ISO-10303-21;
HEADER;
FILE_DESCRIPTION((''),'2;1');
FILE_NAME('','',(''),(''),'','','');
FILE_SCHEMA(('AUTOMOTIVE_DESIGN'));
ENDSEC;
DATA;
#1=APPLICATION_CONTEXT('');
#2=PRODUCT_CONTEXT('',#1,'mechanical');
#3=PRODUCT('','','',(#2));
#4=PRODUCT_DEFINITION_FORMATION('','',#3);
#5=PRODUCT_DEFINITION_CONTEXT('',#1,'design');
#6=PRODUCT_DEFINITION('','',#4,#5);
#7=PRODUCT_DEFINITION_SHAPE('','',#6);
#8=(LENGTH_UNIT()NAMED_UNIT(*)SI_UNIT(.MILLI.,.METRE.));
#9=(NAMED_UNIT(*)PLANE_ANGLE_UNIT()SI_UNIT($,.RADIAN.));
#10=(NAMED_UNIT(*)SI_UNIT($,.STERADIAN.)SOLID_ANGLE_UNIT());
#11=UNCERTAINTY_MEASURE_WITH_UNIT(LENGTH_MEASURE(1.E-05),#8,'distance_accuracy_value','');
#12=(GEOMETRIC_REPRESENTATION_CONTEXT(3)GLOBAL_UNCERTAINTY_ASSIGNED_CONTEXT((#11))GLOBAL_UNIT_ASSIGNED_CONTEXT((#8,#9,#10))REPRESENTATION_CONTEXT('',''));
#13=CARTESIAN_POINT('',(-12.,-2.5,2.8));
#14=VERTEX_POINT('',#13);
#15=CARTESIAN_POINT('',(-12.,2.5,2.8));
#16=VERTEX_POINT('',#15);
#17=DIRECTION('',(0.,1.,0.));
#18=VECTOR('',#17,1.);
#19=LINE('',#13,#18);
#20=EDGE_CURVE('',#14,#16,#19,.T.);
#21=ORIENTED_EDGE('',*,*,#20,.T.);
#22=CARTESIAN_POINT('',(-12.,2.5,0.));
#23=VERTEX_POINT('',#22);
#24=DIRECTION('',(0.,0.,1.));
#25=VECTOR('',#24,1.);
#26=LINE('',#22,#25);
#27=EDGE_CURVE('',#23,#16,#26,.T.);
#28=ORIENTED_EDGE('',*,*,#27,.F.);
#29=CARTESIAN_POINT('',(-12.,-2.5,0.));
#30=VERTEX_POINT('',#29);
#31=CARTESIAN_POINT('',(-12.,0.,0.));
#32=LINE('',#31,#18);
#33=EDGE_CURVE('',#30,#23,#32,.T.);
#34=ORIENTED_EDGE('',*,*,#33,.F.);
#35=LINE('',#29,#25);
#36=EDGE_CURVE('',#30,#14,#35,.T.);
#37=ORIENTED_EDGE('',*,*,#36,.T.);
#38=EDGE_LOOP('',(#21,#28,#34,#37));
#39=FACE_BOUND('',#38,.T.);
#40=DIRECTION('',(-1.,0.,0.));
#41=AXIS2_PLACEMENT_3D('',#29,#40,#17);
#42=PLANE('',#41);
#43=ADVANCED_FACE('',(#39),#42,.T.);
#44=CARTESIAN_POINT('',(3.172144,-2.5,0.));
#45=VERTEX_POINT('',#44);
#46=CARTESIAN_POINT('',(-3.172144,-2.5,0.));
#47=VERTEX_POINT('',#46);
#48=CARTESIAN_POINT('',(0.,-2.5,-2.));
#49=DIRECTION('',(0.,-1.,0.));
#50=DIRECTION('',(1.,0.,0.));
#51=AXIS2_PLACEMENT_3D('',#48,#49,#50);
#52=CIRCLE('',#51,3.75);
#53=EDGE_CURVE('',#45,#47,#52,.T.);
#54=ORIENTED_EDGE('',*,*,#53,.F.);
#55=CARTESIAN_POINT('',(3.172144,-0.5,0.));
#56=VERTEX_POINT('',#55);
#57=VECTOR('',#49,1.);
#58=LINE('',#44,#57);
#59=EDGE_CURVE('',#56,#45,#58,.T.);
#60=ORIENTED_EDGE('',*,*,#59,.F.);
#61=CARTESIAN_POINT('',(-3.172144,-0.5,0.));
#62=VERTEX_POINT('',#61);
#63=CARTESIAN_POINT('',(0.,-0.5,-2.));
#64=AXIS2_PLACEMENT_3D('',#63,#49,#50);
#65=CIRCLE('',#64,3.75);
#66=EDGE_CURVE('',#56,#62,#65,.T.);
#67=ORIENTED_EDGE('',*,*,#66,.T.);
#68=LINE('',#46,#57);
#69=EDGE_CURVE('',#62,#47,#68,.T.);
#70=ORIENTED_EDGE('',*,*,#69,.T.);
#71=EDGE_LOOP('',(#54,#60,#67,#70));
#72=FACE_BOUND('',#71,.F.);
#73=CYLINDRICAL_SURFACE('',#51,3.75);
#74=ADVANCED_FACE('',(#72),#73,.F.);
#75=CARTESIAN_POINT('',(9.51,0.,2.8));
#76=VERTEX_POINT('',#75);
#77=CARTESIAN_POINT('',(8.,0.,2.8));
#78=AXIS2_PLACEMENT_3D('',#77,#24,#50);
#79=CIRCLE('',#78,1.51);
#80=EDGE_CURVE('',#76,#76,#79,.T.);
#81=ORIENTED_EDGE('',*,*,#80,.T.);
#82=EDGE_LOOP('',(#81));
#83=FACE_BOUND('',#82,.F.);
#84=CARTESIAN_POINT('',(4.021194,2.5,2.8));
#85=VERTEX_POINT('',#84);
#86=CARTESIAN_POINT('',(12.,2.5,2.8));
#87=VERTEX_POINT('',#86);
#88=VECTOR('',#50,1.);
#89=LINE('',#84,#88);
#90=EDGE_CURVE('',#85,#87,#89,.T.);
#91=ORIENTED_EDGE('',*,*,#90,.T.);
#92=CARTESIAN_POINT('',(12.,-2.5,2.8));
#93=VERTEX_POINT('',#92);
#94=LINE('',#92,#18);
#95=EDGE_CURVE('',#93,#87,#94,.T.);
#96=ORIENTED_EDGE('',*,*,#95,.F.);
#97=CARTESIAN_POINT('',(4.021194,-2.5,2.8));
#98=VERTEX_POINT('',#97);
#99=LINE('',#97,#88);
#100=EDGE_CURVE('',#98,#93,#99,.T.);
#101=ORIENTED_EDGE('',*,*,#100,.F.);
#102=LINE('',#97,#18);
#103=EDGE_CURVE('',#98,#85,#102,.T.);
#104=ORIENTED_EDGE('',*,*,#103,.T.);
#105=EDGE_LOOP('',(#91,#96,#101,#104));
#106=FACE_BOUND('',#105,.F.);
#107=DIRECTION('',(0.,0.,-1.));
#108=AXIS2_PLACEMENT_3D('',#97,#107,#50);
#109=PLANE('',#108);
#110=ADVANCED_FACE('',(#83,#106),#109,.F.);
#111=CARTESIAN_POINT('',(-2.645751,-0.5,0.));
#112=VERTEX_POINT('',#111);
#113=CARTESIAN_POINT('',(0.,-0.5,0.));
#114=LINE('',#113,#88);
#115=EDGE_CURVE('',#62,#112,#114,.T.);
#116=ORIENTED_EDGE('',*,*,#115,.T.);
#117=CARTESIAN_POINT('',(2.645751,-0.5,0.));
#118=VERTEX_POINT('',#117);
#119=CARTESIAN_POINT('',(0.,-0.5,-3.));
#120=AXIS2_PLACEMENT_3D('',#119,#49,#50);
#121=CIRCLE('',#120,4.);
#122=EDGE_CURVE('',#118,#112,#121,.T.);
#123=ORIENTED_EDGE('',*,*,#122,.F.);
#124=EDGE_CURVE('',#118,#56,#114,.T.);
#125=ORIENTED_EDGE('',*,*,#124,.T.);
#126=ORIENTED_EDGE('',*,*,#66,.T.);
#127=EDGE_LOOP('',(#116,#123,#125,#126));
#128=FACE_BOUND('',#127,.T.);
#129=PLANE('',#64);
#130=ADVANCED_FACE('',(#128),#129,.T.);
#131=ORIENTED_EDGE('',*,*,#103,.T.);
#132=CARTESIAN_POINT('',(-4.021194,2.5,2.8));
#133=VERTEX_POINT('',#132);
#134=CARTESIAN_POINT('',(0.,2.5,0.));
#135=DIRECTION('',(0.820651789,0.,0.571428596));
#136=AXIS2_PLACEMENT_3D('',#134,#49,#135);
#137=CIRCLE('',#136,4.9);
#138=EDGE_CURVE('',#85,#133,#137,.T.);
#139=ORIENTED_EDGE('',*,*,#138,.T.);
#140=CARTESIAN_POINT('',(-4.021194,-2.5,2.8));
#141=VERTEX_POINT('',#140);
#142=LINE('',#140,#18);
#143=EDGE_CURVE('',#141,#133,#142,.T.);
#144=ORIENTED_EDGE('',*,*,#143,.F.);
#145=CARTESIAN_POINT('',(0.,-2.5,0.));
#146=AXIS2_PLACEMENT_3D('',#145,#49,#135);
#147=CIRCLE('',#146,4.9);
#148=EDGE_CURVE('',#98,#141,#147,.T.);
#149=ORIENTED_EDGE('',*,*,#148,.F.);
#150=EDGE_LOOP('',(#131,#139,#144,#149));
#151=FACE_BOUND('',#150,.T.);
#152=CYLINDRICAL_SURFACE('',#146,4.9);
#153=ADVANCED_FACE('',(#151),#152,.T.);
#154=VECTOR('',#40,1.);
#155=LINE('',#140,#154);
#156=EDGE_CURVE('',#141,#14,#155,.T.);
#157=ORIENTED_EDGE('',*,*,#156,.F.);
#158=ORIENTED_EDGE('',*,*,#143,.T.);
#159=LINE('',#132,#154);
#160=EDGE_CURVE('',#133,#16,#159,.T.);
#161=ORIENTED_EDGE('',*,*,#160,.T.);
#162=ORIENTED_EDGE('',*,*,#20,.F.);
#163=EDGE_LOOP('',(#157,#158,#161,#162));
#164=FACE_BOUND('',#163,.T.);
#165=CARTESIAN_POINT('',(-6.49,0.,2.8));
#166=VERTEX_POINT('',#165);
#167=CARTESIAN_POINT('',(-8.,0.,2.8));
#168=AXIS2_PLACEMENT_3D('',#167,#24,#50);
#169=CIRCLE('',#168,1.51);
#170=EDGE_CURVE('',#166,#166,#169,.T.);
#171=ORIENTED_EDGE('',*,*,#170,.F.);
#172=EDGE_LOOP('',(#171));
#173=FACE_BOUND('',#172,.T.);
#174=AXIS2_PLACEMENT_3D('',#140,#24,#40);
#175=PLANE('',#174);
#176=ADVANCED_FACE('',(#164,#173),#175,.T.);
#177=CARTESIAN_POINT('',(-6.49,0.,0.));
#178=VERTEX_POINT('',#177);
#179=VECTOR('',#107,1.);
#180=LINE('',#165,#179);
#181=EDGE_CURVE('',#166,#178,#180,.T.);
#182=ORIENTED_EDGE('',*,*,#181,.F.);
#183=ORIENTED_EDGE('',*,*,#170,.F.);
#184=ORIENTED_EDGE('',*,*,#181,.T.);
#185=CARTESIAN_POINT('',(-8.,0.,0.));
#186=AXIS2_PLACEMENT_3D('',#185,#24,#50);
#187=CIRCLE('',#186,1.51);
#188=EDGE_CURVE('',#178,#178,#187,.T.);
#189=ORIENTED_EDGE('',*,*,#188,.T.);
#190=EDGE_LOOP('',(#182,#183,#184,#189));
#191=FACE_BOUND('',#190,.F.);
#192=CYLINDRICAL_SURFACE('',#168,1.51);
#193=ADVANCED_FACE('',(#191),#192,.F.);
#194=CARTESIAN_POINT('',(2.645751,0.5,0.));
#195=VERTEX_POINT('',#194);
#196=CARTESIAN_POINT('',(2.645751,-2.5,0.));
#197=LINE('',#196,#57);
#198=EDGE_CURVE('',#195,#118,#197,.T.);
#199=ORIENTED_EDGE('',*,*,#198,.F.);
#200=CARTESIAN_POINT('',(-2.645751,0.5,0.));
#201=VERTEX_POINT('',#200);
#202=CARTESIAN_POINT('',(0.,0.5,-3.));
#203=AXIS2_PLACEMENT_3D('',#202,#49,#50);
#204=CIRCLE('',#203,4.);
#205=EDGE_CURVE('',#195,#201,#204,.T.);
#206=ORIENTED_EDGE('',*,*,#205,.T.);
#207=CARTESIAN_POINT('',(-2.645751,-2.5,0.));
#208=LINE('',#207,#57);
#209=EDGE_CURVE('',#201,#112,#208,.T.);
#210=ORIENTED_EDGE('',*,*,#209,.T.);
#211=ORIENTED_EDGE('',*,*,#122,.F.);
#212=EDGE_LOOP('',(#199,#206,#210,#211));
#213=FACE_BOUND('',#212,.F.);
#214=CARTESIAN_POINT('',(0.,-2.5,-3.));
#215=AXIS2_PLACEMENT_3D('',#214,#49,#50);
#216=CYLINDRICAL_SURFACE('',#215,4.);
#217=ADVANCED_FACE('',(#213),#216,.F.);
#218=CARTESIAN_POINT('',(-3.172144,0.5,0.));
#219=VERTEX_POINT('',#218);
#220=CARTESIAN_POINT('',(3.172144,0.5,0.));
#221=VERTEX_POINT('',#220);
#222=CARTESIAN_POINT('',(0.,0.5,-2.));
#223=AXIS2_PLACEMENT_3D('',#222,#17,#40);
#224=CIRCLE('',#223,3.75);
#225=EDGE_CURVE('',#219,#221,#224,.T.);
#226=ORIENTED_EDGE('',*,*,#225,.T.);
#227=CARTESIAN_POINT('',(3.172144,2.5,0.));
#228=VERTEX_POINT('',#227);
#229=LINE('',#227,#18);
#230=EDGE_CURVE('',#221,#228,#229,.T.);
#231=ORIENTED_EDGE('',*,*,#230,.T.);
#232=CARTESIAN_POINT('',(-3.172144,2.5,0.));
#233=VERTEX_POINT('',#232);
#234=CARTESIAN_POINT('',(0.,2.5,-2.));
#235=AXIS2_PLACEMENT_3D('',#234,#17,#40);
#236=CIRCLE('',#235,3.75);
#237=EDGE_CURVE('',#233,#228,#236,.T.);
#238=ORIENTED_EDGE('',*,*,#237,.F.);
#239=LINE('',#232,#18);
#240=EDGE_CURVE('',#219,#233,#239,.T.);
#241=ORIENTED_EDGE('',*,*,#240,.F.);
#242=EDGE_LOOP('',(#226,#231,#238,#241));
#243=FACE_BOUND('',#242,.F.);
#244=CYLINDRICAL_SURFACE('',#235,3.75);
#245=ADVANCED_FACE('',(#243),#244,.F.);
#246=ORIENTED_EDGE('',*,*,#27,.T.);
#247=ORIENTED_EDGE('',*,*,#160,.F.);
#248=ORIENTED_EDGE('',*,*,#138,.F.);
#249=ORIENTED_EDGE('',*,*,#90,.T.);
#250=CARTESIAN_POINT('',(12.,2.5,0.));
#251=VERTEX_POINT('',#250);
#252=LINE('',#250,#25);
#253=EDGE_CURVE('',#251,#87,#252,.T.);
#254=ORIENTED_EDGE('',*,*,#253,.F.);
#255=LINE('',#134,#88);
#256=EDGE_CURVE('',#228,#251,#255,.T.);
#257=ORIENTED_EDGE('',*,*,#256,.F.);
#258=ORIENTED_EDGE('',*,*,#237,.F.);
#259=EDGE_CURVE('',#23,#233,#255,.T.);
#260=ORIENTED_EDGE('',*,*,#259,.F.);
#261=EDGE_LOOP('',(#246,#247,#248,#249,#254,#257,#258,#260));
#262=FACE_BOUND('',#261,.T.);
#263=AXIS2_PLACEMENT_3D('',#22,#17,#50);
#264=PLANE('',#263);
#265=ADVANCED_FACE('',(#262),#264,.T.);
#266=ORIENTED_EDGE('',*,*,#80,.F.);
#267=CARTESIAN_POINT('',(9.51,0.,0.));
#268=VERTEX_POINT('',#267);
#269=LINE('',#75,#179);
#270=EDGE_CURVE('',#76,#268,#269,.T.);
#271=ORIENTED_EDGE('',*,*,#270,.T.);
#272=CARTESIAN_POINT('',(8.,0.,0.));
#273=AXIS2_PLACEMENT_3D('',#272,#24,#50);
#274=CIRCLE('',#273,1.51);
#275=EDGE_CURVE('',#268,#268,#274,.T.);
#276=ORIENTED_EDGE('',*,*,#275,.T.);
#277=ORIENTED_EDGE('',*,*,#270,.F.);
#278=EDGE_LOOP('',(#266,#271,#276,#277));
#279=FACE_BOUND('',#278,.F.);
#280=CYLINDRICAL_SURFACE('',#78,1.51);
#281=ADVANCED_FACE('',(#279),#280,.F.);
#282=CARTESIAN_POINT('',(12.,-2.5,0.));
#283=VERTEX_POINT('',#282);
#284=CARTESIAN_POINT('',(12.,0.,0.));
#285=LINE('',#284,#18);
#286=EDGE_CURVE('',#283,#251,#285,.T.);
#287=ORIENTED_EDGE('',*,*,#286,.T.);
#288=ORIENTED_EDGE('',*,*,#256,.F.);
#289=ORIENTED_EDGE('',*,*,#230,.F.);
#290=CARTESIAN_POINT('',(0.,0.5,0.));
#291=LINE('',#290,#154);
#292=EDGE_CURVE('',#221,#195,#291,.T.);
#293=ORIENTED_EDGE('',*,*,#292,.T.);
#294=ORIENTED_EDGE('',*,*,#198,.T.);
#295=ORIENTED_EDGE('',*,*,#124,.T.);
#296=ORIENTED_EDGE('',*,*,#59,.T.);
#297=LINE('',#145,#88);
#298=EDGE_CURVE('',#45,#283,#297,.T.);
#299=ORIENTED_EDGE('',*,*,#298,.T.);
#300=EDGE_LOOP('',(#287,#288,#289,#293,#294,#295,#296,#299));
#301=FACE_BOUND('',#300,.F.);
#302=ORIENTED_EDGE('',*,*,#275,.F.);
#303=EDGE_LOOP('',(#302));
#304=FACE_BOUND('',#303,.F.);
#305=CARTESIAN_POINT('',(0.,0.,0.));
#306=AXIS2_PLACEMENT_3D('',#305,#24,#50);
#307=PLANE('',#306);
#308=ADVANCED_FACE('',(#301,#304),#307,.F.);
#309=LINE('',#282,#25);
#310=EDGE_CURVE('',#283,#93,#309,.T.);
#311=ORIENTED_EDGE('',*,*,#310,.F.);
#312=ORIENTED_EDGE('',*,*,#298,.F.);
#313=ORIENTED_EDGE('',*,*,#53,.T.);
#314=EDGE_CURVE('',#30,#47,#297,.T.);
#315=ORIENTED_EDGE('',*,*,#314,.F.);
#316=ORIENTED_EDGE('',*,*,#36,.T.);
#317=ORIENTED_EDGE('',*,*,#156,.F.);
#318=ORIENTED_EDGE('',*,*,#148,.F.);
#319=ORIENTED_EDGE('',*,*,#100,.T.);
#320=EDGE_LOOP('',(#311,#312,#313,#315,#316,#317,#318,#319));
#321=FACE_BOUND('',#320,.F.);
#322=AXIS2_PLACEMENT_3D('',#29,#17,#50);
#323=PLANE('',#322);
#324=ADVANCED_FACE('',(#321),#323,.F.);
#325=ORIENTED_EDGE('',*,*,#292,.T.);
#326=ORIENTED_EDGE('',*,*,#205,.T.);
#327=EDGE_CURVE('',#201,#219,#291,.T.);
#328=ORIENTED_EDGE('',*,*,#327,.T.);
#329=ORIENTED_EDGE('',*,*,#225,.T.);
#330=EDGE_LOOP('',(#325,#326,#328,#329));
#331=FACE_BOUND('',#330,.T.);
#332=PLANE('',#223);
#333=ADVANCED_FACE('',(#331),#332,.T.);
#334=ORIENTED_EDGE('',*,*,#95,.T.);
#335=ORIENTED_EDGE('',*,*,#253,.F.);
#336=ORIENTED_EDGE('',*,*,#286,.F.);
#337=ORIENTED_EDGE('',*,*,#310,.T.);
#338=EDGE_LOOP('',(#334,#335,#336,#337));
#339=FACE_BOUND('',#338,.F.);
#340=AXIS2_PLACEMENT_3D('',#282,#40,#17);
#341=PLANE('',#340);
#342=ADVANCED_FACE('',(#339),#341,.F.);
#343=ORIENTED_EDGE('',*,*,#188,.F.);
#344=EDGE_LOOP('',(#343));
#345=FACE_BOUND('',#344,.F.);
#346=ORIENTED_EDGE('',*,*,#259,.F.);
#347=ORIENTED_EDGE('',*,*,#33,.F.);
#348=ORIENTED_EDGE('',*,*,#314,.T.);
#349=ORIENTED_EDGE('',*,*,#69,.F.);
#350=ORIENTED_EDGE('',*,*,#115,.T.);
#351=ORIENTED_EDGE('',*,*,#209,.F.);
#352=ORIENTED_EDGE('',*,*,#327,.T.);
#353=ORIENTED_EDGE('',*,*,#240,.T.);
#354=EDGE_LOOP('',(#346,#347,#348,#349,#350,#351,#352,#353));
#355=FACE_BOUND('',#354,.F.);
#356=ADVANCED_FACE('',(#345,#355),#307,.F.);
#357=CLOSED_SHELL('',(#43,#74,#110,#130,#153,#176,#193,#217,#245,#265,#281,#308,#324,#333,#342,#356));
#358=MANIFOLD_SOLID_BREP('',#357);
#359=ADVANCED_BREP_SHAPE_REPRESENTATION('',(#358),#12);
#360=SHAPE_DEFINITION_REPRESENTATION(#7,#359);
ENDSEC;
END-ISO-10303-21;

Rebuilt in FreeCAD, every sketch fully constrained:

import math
import FreeCAD as App
import Part
import Sketcher

V = App.Vector

doc = App.newDocument("Part")
body = doc.addObject("PartDesign::Body", "Body")

# Sketch on XY plane
sketch1 = body.newObject("Sketcher::SketchObject", "Sketch")
sketch1.AttachmentSupport = (doc.getObject("XY_Plane"), [""])
sketch1.MapMode = "FlatFace"
sketch1.addGeometry([
    Part.LineSegment(V(-12, 2, 0), V(-12, -2, 0)),
    Part.LineSegment(V(-12, -2, 0), V(12, -2, 0)),
    Part.LineSegment(V(12, -2, 0), V(12, 2, 0)),
    Part.LineSegment(V(12, 2, 0), V(-12, 2, 0)),
], False)
sketch1.addConstraint([
    Sketcher.Constraint("Coincident", 0, 2, 1, 1),
    Sketcher.Constraint("Coincident", 1, 2, 2, 1),
    Sketcher.Constraint("Coincident", 2, 2, 3, 1),
    Sketcher.Constraint("Coincident", 3, 2, 0, 1),
    Sketcher.Constraint("Vertical", 0),
    Sketcher.Constraint("Horizontal", 1),
    Sketcher.Constraint("Vertical", 2),
    Sketcher.Constraint("Horizontal", 3),
    Sketcher.Constraint("Symmetric", 0, 2, 2, 2, -1, 1),
    Sketcher.Constraint("DistanceX", 1, 1, 1, 2, 24.0),
    Sketcher.Constraint("DistanceY", 0, 2, 0, 1, 5.0),
])
pad1 = body.newObject("PartDesign::Pad", "Pad")
pad1.Profile = sketch1
pad1.Length = 5

# Sketch on XZ plane
sketch2 = body.newObject("Sketcher::SketchObject", "Sketch001")
sketch2.AttachmentSupport = (doc.getObject("XZ_Plane"), [""])
sketch2.MapMode = "FlatFace"
sketch2.AttachmentOffset = App.Placement(V(0, 0, 2.5), App.Rotation())
sketch2.addGeometry(Part.Circle(V(0, -2, 0), V(0, 0, 1), 3.8), False)
sketch2.addConstraint([
    Sketcher.Constraint("PointOnObject", 0, 3, -2),
    Sketcher.Constraint("Diameter", 0, 7.5),
    Sketcher.Constraint("DistanceY", 0, 3, -1, 1, 2.0),
])
pocket1 = body.newObject("PartDesign::Pocket", "Pocket")
pocket1.Profile = sketch2
pocket1.Length = 2

# Sketch on XZ plane
sketch3 = body.newObject("Sketcher::SketchObject", "Sketch002")
sketch3.AttachmentSupport = (doc.getObject("XZ_Plane"), [""])
sketch3.MapMode = "FlatFace"
sketch3.AttachmentOffset = App.Placement(V(0, 0, -2.5), App.Rotation())
sketch3.addGeometry(Part.Circle(V(0, -2, 0), V(0, 0, 1), 3.8), False)
sketch3.addConstraint([
    Sketcher.Constraint("PointOnObject", 0, 3, -2),
    Sketcher.Constraint("Diameter", 0, 7.5),
    Sketcher.Constraint("DistanceY", 0, 3, -1, 1, 2.0),
])
pocket2 = body.newObject("PartDesign::Pocket", "Pocket001")
pocket2.Profile = sketch3
pocket2.Length = 2
pocket2.Reversed = True

# Sketch on XZ plane
sketch4 = body.newObject("Sketcher::SketchObject", "Sketch003")
sketch4.AttachmentSupport = (doc.getObject("XZ_Plane"), [""])
sketch4.MapMode = "FlatFace"
sketch4.AttachmentOffset = App.Placement(V(0, 0, 2.5), App.Rotation())
sketch4.addGeometry([
    Part.Circle(V(0, -3, 0), V(0, 0, 1), 4),  # 0
    Part.ArcOfCircle(Part.Circle(V(0, 0, 0), V(0, 0, 1), 4.9), math.radians(35), math.radians(145)),  # 1
    Part.LineSegment(V(4, 2.8, 0), V(12, 2.8, 0)),  # 2
    Part.LineSegment(V(12, 2.8, 0), V(12, 5, 0)),  # 3
    Part.LineSegment(V(12, 5, 0), V(-12, 5, 0)),  # 4
    Part.LineSegment(V(-12, 5, 0), V(-12, 2.8, 0)),  # 5
    Part.LineSegment(V(-12, 2.8, 0), V(-4, 2.8, 0)),  # 6
], False)
sketch4.addConstraint([
    Sketcher.Constraint("Coincident", 1, 1, 2, 1),
    Sketcher.Constraint("Coincident", 2, 2, 3, 1),
    Sketcher.Constraint("Coincident", 3, 2, 4, 1),
    Sketcher.Constraint("Coincident", 4, 2, 5, 1),
    Sketcher.Constraint("Coincident", 5, 2, 6, 1),
    Sketcher.Constraint("Coincident", 6, 2, 1, 2),
    Sketcher.Constraint("Horizontal", 2),
    Sketcher.Constraint("Vertical", 3),
    Sketcher.Constraint("Horizontal", 4),
    Sketcher.Constraint("Vertical", 5),
    Sketcher.Constraint("Horizontal", 6),
    Sketcher.Constraint("Coincident", 1, 3, -1, 1),
    Sketcher.Constraint("Symmetric", 2, 2, 5, 2, -2),
    Sketcher.Constraint("PointOnObject", 0, 3, -2),
    Sketcher.Constraint("Diameter", 0, 8.0),
    Sketcher.Constraint("Radius", 1, 4.9),
    Sketcher.Constraint("DistanceX", 4, 2, 4, 1, 24.0),
    Sketcher.Constraint("DistanceY", 3, 1, 3, 2, 2.2),
    Sketcher.Constraint("DistanceY", 0, 3, -1, 1, 3.0),
    Sketcher.Constraint("DistanceY", -1, 1, 3, 2, 5.0),
])
pocket3 = body.newObject("PartDesign::Pocket", "Pocket002")
pocket3.Profile = sketch4
pocket3.Length = 5

# Sketch on XY plane
sketch5 = body.newObject("Sketcher::SketchObject", "Sketch004")
sketch5.AttachmentSupport = (doc.getObject("XY_Plane"), [""])
sketch5.MapMode = "FlatFace"
sketch5.AttachmentOffset = App.Placement(V(0, 0, 2.8), App.Rotation())
sketch5.addGeometry([
    Part.Circle(V(-8, 0, 0), V(0, 0, 1), 1.5),
    Part.Circle(V(8, 0, 0), V(0, 0, 1), 1.5),
], False)
sketch5.addConstraint([
    Sketcher.Constraint("Equal", 0, 1),
    Sketcher.Constraint("Symmetric", 0, 3, 1, 3, -1, 1),
    Sketcher.Constraint("PointOnObject", 0, 3, -1),
    Sketcher.Constraint("Diameter", 0, 3.02),
    Sketcher.Constraint("DistanceX", 0, 3, -1, 1, 8.0),
])
pocket4 = body.newObject("PartDesign::Pocket", "Pocket003")
pocket4.Profile = sketch5
pocket4.Length = 3

doc.recompute()
